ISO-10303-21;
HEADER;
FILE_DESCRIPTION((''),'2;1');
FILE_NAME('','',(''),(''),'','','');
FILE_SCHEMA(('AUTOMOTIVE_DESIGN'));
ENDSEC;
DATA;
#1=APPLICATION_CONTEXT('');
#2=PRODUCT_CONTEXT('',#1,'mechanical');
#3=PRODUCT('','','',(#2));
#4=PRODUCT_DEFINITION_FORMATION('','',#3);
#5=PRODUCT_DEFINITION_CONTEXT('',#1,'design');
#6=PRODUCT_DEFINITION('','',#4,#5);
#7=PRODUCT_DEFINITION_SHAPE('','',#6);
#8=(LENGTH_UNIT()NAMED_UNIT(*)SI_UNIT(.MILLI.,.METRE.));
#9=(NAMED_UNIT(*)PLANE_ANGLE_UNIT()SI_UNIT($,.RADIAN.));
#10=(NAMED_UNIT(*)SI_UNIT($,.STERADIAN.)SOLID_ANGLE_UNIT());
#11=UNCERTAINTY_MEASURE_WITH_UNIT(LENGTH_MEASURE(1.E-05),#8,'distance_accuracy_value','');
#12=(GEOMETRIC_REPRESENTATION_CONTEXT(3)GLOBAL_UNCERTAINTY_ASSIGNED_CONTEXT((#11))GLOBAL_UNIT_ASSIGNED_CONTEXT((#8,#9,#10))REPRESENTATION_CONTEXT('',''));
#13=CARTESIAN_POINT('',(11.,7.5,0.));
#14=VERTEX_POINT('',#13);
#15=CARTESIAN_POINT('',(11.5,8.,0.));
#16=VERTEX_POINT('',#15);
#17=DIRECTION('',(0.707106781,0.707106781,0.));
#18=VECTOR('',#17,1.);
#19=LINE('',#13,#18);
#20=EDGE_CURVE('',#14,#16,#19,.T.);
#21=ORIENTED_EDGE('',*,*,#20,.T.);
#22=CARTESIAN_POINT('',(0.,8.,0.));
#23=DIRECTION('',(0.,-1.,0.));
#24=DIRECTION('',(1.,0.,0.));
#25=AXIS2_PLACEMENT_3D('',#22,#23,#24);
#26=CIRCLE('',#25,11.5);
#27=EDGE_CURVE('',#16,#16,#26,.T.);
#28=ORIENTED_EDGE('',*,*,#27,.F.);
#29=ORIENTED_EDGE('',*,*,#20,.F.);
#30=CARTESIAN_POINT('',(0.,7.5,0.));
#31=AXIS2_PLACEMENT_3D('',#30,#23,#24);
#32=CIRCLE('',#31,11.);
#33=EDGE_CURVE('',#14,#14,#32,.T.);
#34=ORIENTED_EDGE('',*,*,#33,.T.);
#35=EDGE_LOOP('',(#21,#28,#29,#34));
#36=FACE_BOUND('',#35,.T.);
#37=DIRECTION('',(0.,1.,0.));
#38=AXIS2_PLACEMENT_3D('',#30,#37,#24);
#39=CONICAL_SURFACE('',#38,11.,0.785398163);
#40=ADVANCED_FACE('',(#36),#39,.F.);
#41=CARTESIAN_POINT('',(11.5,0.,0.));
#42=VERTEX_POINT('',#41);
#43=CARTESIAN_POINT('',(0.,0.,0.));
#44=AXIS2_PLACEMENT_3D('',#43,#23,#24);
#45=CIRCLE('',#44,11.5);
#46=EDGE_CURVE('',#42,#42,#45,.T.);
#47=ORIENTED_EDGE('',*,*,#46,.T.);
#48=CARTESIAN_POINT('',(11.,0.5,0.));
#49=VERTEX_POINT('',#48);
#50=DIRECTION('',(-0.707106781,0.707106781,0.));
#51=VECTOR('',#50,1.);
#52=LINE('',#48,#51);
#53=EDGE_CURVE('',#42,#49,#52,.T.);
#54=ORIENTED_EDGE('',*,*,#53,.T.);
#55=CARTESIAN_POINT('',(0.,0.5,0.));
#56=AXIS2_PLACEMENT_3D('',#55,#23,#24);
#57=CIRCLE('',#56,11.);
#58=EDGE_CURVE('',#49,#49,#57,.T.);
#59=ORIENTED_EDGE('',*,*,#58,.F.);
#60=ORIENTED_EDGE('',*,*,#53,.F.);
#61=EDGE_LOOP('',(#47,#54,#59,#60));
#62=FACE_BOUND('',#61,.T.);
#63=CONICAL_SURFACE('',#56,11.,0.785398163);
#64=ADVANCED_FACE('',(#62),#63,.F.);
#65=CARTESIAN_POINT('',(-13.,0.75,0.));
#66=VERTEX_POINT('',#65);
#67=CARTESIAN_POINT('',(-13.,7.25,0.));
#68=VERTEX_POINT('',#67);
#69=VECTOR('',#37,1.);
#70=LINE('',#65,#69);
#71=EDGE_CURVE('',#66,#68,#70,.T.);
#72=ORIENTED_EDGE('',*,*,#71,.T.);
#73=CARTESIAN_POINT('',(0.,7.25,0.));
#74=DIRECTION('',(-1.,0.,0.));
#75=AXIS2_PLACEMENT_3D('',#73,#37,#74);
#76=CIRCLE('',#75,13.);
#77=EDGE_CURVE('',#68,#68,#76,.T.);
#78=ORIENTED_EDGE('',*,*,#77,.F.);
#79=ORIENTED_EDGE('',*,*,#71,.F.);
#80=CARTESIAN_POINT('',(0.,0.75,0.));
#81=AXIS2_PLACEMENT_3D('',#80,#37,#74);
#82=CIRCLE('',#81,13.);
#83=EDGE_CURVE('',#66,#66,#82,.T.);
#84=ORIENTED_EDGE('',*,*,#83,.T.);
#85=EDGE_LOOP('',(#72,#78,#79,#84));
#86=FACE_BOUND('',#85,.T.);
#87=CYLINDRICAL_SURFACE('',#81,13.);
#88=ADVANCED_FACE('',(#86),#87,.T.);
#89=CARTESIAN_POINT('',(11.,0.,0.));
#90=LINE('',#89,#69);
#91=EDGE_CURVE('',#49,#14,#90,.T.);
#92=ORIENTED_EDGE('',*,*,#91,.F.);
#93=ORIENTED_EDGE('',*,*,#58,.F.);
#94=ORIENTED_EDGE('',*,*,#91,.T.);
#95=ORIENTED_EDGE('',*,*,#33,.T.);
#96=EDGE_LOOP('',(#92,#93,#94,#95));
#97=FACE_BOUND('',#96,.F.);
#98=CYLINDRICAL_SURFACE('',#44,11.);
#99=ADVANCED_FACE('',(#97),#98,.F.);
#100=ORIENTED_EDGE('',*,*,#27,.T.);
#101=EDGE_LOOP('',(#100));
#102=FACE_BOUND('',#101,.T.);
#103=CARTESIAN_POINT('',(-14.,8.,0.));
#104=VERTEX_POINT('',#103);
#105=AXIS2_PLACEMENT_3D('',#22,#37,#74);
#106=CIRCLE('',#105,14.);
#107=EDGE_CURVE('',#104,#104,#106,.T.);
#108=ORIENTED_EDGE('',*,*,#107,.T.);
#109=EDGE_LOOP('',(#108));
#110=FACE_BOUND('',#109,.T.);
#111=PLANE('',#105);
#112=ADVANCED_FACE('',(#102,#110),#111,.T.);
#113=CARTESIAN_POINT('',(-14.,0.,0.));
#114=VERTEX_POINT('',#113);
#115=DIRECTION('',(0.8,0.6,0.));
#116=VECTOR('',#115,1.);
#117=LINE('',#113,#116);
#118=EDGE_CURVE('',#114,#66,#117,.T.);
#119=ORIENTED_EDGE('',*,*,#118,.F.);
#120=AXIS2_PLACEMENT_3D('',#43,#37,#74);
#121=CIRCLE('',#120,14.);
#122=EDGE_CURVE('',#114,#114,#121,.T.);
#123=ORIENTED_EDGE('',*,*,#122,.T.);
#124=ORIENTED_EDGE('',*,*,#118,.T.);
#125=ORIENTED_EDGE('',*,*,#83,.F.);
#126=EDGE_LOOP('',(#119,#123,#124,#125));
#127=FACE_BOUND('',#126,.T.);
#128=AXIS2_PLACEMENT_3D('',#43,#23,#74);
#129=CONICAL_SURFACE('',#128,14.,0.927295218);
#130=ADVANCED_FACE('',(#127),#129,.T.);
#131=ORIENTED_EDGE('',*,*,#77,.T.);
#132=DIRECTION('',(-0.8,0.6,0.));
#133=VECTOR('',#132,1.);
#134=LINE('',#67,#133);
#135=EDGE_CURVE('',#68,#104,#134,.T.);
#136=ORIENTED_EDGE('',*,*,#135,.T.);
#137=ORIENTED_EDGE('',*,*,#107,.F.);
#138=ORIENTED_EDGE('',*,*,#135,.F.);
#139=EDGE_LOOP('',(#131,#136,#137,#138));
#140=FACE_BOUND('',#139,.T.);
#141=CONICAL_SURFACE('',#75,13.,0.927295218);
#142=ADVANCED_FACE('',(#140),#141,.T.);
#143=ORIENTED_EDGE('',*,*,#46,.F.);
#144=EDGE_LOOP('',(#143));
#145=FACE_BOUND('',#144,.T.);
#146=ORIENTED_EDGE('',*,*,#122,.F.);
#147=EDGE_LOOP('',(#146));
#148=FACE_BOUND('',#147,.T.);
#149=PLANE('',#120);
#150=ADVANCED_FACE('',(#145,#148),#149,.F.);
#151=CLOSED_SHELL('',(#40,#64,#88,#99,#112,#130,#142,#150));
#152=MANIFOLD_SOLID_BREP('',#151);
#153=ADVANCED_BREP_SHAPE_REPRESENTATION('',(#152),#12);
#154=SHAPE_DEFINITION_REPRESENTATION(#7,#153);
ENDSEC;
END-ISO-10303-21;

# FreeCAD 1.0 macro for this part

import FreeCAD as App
import Part
import Sketcher
Q = App.Units.Quantity


def edges_at(feature, points):
    """Names of the edges that pass closest to the given points."""
    edges = feature.Shape.Edges
    near = lambda p: min(range(len(edges)), key=lambda i: edges[i].distToShape(Part.Vertex(*p))[0])
    return sorted({f"Edge{near(p) + 1}" for p in points})


def add_polygon(sketch, points):
    """Adds a closed chain of lines whose ends are joined by coincident constraints."""
    first, n = sketch.GeometryCount, len(points)
    for a, b in zip(points, points[1:] + points[:1]):
        sketch.addGeometry(Part.LineSegment(App.Vector(*a, 0), App.Vector(*b, 0)), False)
    for i in range(n):
        sketch.addConstraint(Sketcher.Constraint("Coincident", first + i, 2, first + (i + 1) % n, 1))

doc = App.newDocument("Part")
body = doc.addObject("PartDesign::Body", "Body")

# Sketch on XY plane
sketch1 = body.newObject("Sketcher::SketchObject", "Sketch")
sketch1.AttachmentSupport = (doc.getObject("XY_Plane"), [""])
sketch1.MapMode = "FlatFace"
add_polygon(sketch1, [(-14, 0), (0, 0), (0, 8), (-14, 8), (-13, 7.25), (-13, 0.75)])  # lines 0-5
sketch1.addConstraint([
    Sketcher.Constraint("Horizontal", 0),
    Sketcher.Constraint("Vertical", 1),
    Sketcher.Constraint("Horizontal", 2),
    Sketcher.Constraint("Vertical", 4),
    Sketcher.Constraint("Coincident", 0, 2, -1, 1),
    Sketcher.Constraint("Vertical", 2, 2, 5, 2),
    Sketcher.Constraint("Equal", 3, 5),
    Sketcher.Constraint("DistanceX", 0, 1, 0, 2, Q("14 mm")),
    Sketcher.Constraint("DistanceY", 1, 1, 1, 2, Q("8 mm")),
    Sketcher.Constraint("DistanceY", 4, 2, 4, 1, Q("6.5 mm")),
    Sketcher.Constraint("DistanceX", 3, 2, -1, 1, Q("13 mm")),
])
revolution = body.newObject("PartDesign::Revolution", "Revolution")
revolution.Profile = sketch1
revolution.ReferenceAxis = (sketch1, ["V_Axis"])
revolution.Angle = 360

# Sketch on XZ plane
sketch2 = body.newObject("Sketcher::SketchObject", "Sketch001")
sketch2.AttachmentSupport = (doc.getObject("XZ_Plane"), [""])
sketch2.MapMode = "FlatFace"
sketch2.addGeometry(Part.Circle(App.Vector(0, 0, 0), App.Vector(0, 0, 1), 11), False)
sketch2.addConstraint([
    Sketcher.Constraint("Coincident", 0, 3, -1, 1),
    Sketcher.Constraint("Diameter", 0, Q("22 mm")),
])
pocket1 = body.newObject("PartDesign::Pocket", "Pocket")
pocket1.Profile = sketch2
pocket1.Length = 8
doc.recompute()

chamfer = body.newObject("PartDesign::Chamfer", "Chamfer")
chamfer.Base = (pocket1, edges_at(pocket1, [(-11, 0, 0), (-11, 8, 0)]))
chamfer.Size = 0.5

doc.recompute()
